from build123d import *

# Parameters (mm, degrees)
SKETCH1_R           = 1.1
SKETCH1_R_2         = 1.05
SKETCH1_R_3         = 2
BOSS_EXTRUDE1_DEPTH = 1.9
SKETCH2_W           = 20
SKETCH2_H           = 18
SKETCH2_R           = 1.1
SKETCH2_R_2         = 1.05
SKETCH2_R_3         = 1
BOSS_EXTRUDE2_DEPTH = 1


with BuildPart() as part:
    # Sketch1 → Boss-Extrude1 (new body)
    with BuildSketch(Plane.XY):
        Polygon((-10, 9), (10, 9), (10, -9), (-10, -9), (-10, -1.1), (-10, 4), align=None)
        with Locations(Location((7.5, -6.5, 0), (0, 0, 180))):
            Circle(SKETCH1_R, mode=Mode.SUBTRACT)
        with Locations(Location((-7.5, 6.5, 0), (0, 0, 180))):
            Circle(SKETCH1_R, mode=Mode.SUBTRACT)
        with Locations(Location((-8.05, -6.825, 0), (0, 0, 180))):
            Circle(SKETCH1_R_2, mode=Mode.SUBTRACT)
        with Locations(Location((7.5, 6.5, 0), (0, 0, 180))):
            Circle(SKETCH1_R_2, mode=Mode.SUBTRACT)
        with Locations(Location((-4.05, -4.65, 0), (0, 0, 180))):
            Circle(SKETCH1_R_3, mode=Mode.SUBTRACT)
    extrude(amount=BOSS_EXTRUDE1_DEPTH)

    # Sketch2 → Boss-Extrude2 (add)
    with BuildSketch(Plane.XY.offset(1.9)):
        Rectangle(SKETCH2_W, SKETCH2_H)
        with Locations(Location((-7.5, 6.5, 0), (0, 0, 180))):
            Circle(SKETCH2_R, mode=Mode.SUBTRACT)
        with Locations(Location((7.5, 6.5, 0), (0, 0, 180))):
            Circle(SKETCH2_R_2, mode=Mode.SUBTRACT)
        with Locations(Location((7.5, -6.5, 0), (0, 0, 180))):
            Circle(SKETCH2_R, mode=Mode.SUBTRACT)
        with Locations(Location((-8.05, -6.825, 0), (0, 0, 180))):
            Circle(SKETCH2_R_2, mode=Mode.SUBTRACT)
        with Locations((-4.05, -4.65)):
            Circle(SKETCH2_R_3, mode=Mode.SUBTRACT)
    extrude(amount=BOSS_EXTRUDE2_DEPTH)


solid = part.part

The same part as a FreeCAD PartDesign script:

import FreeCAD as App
import Part
import Sketcher

V = App.Vector

doc = App.newDocument("Part")
body = doc.addObject("PartDesign::Body", "Body")

# Sketch on XY plane
sketch1 = body.newObject("Sketcher::SketchObject", "Sketch")
sketch1.AttachmentSupport = (doc.getObject("XY_Plane"), [""])
sketch1.MapMode = "FlatFace"
sketch1.addGeometry([
    Part.LineSegment(V(10, 9, 0), V(-10, 9, 0)),  # 0
    Part.LineSegment(V(-10, 9, 0), V(-10, -9, 0)),  # 1
    Part.LineSegment(V(-10, -9, 0), V(10, -9, 0)),  # 2
    Part.LineSegment(V(10, -9, 0), V(10, 9, 0)),  # 3
    Part.Circle(V(7.5, -6.5, 0), V(0, 0, 1), 1.1),  # 4
    Part.Circle(V(-4, -4.7, 0), V(0, 0, 1), 2),  # 5
    Part.Circle(V(-8.1, -6.8, 0), V(0, 0, 1), 1.1),  # 6
    Part.Circle(V(7.5, 6.5, 0), V(0, 0, 1), 1.1),  # 7
    Part.Circle(V(-7.5, 6.5, 0), V(0, 0, 1), 1.1),  # 8
], False)
sketch1.addConstraint([
    Sketcher.Constraint("Coincident", 0, 2, 1, 1),
    Sketcher.Constraint("Coincident", 1, 2, 2, 1),
    Sketcher.Constraint("Coincident", 2, 2, 3, 1),
    Sketcher.Constraint("Coincident", 3, 2, 0, 1),
    Sketcher.Constraint("Horizontal", 0),
    Sketcher.Constraint("Vertical", 1),
    Sketcher.Constraint("Horizontal", 2),
    Sketcher.Constraint("Vertical", 3),
    Sketcher.Constraint("Equal", 6, 7),
    Sketcher.Constraint("Equal", 4, 8),
    Sketcher.Constraint("Symmetric", 4, 3, 8, 3, -1, 1),
    Sketcher.Constraint("Symmetric", 0, 2, 2, 2, -1, 1),
    Sketcher.Constraint("Symmetric", 7, 3, 8, 3, -2),
    Sketcher.Constraint("Diameter", 5, 4.0),
    Sketcher.Constraint("Diameter", 4, 2.2),
    Sketcher.Constraint("Diameter", 6, 2.1),
    Sketcher.Constraint("DistanceX", 0, 2, 0, 1, 20.0),
    Sketcher.Constraint("DistanceY", 1, 2, 1, 1, 18.0),
    Sketcher.Constraint("DistanceX", 6, 3, 5, 3, 4.0),
    Sketcher.Constraint("DistanceY", 4, 3, 7, 3, 13.0),
    Sketcher.Constraint("DistanceX", 8, 3, 7, 3, 15.0),
    Sketcher.Constraint("DistanceX", 5, 3, -1, 1, 4.05),
    Sketcher.Constraint("DistanceY", 5, 3, -1, 1, 4.65),
    Sketcher.Constraint("DistanceY", 6, 3, -1, 1, 6.825),
])
pad1 = body.newObject("PartDesign::Pad", "Pad")
pad1.Profile = sketch1
pad1.Length = 1.9

# Sketch on XY plane
sketch2 = body.newObject("Sketcher::SketchObject", "Sketch001")
sketch2.AttachmentSupport = (doc.getObject("XY_Plane"), [""])
sketch2.MapMode = "FlatFace"
sketch2.AttachmentOffset = App.Placement(V(0, 0, 1.9), App.Rotation())
sketch2.addGeometry([
    Part.LineSegment(V(-10, 9, 0), V(-10, -9, 0)),  # 0
    Part.LineSegment(V(-10, -9, 0), V(10, -9, 0)),  # 1
    Part.LineSegment(V(10, -9, 0), V(10, 9, 0)),  # 2
    Part.LineSegment(V(10, 9, 0), V(-10, 9, 0)),  # 3
    Part.Circle(V(-8.1, -6.8, 0), V(0, 0, 1), 1.1),  # 4
    Part.Circle(V(-4, -4.7, 0), V(0, 0, 1), 1),  # 5
    Part.Circle(V(7.5, -6.5, 0), V(0, 0, 1), 1.1),  # 6
    Part.Circle(V(-7.5, 6.5, 0), V(0, 0, 1), 1.1),  # 7
    Part.Circle(V(7.5, 6.5, 0), V(0, 0, 1), 1.1),  # 8
], False)
sketch2.addConstraint([
    Sketcher.Constraint("Coincident", 0, 2, 1, 1),
    Sketcher.Constraint("Coincident", 1, 2, 2, 1),
    Sketcher.Constraint("Coincident", 2, 2, 3, 1),
    Sketcher.Constraint("Coincident", 3, 2, 0, 1),
    Sketcher.Constraint("Vertical", 0),
    Sketcher.Constraint("Horizontal", 1),
    Sketcher.Constraint("Vertical", 2),
    Sketcher.Constraint("Horizontal", 3),
    Sketcher.Constraint("Equal", 6, 7),
    Sketcher.Constraint("Equal", 4, 8),
    Sketcher.Constraint("Symmetric", 6, 3, 7, 3, -1, 1),
    Sketcher.Constraint("Symmetric", 0, 2, 2, 2, -1, 1),
    Sketcher.Constraint("Symmetric", 7, 3, 8, 3, -2),
    Sketcher.Constraint("Diameter", 5, 2.0),
    Sketcher.Constraint("Diameter", 4, 2.1),
    Sketcher.Constraint("Diameter", 6, 2.2),
    Sketcher.Constraint("DistanceX", 1, 1, 1, 2, 20.0),
    Sketcher.Constraint("DistanceY", 0, 2, 0, 1, 18.0),
    Sketcher.Constraint("DistanceX", 4, 3, 5, 3, 4.0),
    Sketcher.Constraint("DistanceX", 7, 3, 6, 3, 15.0),
    Sketcher.Constraint("DistanceY", 6, 3, 7, 3, 13.0),
    Sketcher.Constraint("DistanceX", 4, 3, -1, 1, 8.05),
    Sketcher.Constraint("DistanceY", 5, 3, -1, 1, 4.65),
    Sketcher.Constraint("DistanceY", 4, 3, -1, 1, 6.825),
])
pad2 = body.newObject("PartDesign::Pad", "Pad001")
pad2.Profile = sketch2
pad2.Length = 1

doc.recompute()
